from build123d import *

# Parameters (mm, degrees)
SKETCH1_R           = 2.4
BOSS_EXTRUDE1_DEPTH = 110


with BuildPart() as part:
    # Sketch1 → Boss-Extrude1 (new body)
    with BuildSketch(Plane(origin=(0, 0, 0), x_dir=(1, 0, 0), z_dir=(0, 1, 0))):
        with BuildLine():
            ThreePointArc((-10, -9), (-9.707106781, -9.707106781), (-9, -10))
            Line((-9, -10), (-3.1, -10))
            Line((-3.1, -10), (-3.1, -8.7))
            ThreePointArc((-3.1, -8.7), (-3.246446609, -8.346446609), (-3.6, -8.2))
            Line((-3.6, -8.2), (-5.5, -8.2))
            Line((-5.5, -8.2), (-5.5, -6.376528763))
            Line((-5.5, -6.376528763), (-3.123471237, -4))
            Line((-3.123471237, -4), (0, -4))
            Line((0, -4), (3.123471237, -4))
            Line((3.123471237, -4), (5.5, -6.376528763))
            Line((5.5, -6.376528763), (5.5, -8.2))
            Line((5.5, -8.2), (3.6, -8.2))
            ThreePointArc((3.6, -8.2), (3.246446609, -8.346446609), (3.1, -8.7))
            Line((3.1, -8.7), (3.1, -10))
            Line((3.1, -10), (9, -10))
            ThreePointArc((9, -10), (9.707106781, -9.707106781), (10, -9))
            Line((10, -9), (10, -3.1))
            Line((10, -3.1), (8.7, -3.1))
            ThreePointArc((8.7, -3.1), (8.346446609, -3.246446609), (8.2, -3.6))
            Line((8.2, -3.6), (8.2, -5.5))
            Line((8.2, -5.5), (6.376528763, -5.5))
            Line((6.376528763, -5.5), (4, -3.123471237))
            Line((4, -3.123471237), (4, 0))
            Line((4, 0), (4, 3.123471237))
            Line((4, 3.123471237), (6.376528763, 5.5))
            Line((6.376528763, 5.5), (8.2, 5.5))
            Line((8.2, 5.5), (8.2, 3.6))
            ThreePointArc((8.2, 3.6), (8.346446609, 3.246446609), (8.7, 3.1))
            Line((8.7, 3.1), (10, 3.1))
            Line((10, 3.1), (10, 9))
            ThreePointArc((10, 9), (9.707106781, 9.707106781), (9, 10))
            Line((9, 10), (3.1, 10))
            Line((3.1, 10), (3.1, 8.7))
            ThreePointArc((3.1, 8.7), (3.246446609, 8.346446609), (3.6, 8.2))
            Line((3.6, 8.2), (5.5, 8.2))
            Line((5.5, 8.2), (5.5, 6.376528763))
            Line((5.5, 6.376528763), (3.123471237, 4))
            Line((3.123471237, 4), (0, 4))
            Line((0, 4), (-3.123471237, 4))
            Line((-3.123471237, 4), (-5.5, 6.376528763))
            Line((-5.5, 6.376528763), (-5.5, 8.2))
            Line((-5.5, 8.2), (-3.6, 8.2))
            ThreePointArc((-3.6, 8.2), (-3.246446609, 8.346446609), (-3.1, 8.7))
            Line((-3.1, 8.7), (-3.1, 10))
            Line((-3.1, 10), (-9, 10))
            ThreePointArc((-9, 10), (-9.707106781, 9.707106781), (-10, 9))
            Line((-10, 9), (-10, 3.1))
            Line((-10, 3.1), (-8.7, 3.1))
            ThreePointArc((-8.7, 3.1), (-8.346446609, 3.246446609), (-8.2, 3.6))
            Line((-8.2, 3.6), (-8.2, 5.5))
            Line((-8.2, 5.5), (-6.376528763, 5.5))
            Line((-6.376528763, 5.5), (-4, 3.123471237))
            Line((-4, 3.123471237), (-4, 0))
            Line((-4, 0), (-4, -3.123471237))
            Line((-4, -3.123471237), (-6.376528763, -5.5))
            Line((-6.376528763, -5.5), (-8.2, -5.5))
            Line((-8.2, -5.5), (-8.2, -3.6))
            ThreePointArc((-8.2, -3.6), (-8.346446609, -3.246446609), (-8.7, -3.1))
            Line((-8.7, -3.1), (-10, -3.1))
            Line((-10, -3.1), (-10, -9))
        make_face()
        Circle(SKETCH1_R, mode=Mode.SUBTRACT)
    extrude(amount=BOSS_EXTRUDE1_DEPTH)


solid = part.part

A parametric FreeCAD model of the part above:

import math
import FreeCAD as App
import Part
import Sketcher
from FreeCAD import Vector

doc = App.newDocument("Part")
body = doc.addObject("PartDesign::Body", "Body")

sketch1 = body.newObject("Sketcher::SketchObject", "Sketch")
sketch1.AttachmentSupport = (doc.getObject("XZ_Plane"), [""])
sketch1.MapMode = "FlatFace"
sketch1.addGeometry([
    Part.ArcOfCircle(Part.Circle(Vector(-9, 9, 0), Vector(0, 0, 1), 1), math.radians(90), math.radians(180)),
    Part.LineSegment(Vector(-9, 10, 0), Vector(-3.1, 10, 0)),
    Part.LineSegment(Vector(-3.1, 10, 0), Vector(-3.1, 8.7, 0)),
    Part.ArcOfCircle(Part.Circle(Vector(-3.6, 8.7, 0), Vector(0, 0, 1), 0.5), math.radians(-90), math.radians(0)),
    Part.LineSegment(Vector(-3.6, 8.2, 0), Vector(-5.5, 8.2, 0)),
    Part.LineSegment(Vector(-5.5, 8.2, 0), Vector(-5.5, 6.38, 0)),
    Part.LineSegment(Vector(-5.5, 6.38, 0), Vector(-3.12, 4, 0)),
    Part.LineSegment(Vector(-3.12, 4, 0), Vector(3.12, 4, 0)),
    Part.LineSegment(Vector(3.12, 4, 0), Vector(5.5, 6.38, 0)),
    Part.LineSegment(Vector(5.5, 6.38, 0), Vector(5.5, 8.2, 0)),
    Part.LineSegment(Vector(5.5, 8.2, 0), Vector(3.6, 8.2, 0)),
    Part.ArcOfCircle(Part.Circle(Vector(3.6, 8.7, 0), Vector(0, 0, 1), 0.5), math.radians(180), math.radians(270)),
    Part.LineSegment(Vector(3.1, 8.7, 0), Vector(3.1, 10, 0)),
    Part.LineSegment(Vector(3.1, 10, 0), Vector(9, 10, 0)),
    Part.ArcOfCircle(Part.Circle(Vector(9, 9, 0), Vector(0, 0, 1), 1), math.radians(0), math.radians(90)),
    Part.LineSegment(Vector(10, 9, 0), Vector(10, 3.1, 0)),
    Part.LineSegment(Vector(10, 3.1, 0), Vector(8.7, 3.1, 0)),
    Part.ArcOfCircle(Part.Circle(Vector(8.7, 3.6, 0), Vector(0, 0, 1), 0.5), math.radians(180), math.radians(270)),
    Part.LineSegment(Vector(8.2, 3.6, 0), Vector(8.2, 5.5, 0)),
    Part.LineSegment(Vector(8.2, 5.5, 0), Vector(6.38, 5.5, 0)),
    Part.LineSegment(Vector(6.38, 5.5, 0), Vector(4, 3.12, 0)),
    Part.LineSegment(Vector(4, 3.12, 0), Vector(4, -3.12, 0)),
    Part.LineSegment(Vector(4, -3.12, 0), Vector(6.38, -5.5, 0)),
    Part.LineSegment(Vector(6.38, -5.5, 0), Vector(8.2, -5.5, 0)),
    Part.LineSegment(Vector(8.2, -5.5, 0), Vector(8.2, -3.6, 0)),
    Part.ArcOfCircle(Part.Circle(Vector(8.7, -3.6, 0), Vector(0, 0, 1), 0.5), math.radians(90), math.radians(180)),
    Part.LineSegment(Vector(8.7, -3.1, 0), Vector(10, -3.1, 0)),
    Part.LineSegment(Vector(10, -3.1, 0), Vector(10, -9, 0)),
    Part.ArcOfCircle(Part.Circle(Vector(9, -9, 0), Vector(0, 0, 1), 1), math.radians(-90), math.radians(0)),
    Part.LineSegment(Vector(9, -10, 0), Vector(3.1, -10, 0)),
    Part.LineSegment(Vector(3.1, -10, 0), Vector(3.1, -8.7, 0)),
    Part.ArcOfCircle(Part.Circle(Vector(3.6, -8.7, 0), Vector(0, 0, 1), 0.5), math.radians(90), math.radians(180)),
    Part.LineSegment(Vector(3.6, -8.2, 0), Vector(5.5, -8.2, 0)),
    Part.LineSegment(Vector(5.5, -8.2, 0), Vector(5.5, -6.38, 0)),
    Part.LineSegment(Vector(5.5, -6.38, 0), Vector(3.12, -4, 0)),
    Part.LineSegment(Vector(3.12, -4, 0), Vector(-3.12, -4, 0)),
    Part.LineSegment(Vector(-3.12, -4, 0), Vector(-5.5, -6.38, 0)),
    Part.LineSegment(Vector(-5.5, -6.38, 0), Vector(-5.5, -8.2, 0)),
    Part.LineSegment(Vector(-5.5, -8.2, 0), Vector(-3.6, -8.2, 0)),
    Part.ArcOfCircle(Part.Circle(Vector(-3.6, -8.7, 0), Vector(0, 0, 1), 0.5), math.radians(0), math.radians(90)),
    Part.LineSegment(Vector(-3.1, -8.7, 0), Vector(-3.1, -10, 0)),
    Part.LineSegment(Vector(-3.1, -10, 0), Vector(-9, -10, 0)),
    Part.ArcOfCircle(Part.Circle(Vector(-9, -9, 0), Vector(0, 0, 1), 1), math.radians(-180), math.radians(-90)),
    Part.LineSegment(Vector(-10, -9, 0), Vector(-10, -3.1, 0)),
    Part.LineSegment(Vector(-10, -3.1, 0), Vector(-8.7, -3.1, 0)),
    Part.ArcOfCircle(Part.Circle(Vector(-8.7, -3.6, 0), Vector(0, 0, 1), 0.5), math.radians(0), math.radians(90)),
    Part.LineSegment(Vector(-8.2, -3.6, 0), Vector(-8.2, -5.5, 0)),
    Part.LineSegment(Vector(-8.2, -5.5, 0), Vector(-6.38, -5.5, 0)),
    Part.LineSegment(Vector(-6.38, -5.5, 0), Vector(-4, -3.12, 0)),
    Part.LineSegment(Vector(-4, -3.12, 0), Vector(-4, 3.12, 0)),
    Part.LineSegment(Vector(-4, 3.12, 0), Vector(-6.38, 5.5, 0)),
    Part.LineSegment(Vector(-6.38, 5.5, 0), Vector(-8.2, 5.5, 0)),
    Part.LineSegment(Vector(-8.2, 5.5, 0), Vector(-8.2, 3.6, 0)),
    Part.ArcOfCircle(Part.Circle(Vector(-8.7, 3.6, 0), Vector(0, 0, 1), 0.5), math.radians(-90), math.radians(0)),
    Part.LineSegment(Vector(-8.7, 3.1, 0), Vector(-10, 3.1, 0)),
    Part.LineSegment(Vector(-10, 3.1, 0), Vector(-10, 9, 0)),
    Part.Circle(Vector(0, 0, 0), Vector(0, 0, 1), 2.4),
], False)
sketch1.addConstraint([
    Sketcher.Constraint("Tangent", 0, 1, 1, 1),
    Sketcher.Constraint("Coincident", 1, 2, 2, 1),
    Sketcher.Constraint("Tangent", 2, 2, 3, 2),
    Sketcher.Constraint("Tangent", 3, 1, 4, 1),
    Sketcher.Constraint("Coincident", 4, 2, 5, 1),
    Sketcher.Constraint("Coincident", 5, 2, 6, 1),
    Sketcher.Constraint("Coincident", 6, 2, 7, 1),
    Sketcher.Constraint("Coincident", 7, 2, 8, 1),
    Sketcher.Constraint("Coincident", 8, 2, 9, 1),
    Sketcher.Constraint("Coincident", 9, 2, 10, 1),
    Sketcher.Constraint("Tangent", 10, 2, 11, 2),
    Sketcher.Constraint("Tangent", 11, 1, 12, 1),
    Sketcher.Constraint("Coincident", 12, 2, 13, 1),
    Sketcher.Constraint("Tangent", 13, 2, 14, 2),
    Sketcher.Constraint("Tangent", 14, 1, 15, 1),
    Sketcher.Constraint("Coincident", 15, 2, 16, 1),
    Sketcher.Constraint("Tangent", 16, 2, 17, 2),
    Sketcher.Constraint("Tangent", 17, 1, 18, 1),
    Sketcher.Constraint("Coincident", 18, 2, 19, 1),
    Sketcher.Constraint("Coincident", 19, 2, 20, 1),
    Sketcher.Constraint("Coincident", 20, 2, 21, 1),
    Sketcher.Constraint("Coincident", 21, 2, 22, 1),
    Sketcher.Constraint("Coincident", 22, 2, 23, 1),
    Sketcher.Constraint("Coincident", 23, 2, 24, 1),
    Sketcher.Constraint("Tangent", 24, 2, 25, 2),
    Sketcher.Constraint("Tangent", 25, 1, 26, 1),
    Sketcher.Constraint("Coincident", 26, 2, 27, 1),
    Sketcher.Constraint("Tangent", 27, 2, 28, 2),
    Sketcher.Constraint("Tangent", 28, 1, 29, 1),
    Sketcher.Constraint("Coincident", 29, 2, 30, 1),
    Sketcher.Constraint("Tangent", 30, 2, 31, 2),
    Sketcher.Constraint("Tangent", 31, 1, 32, 1),
    Sketcher.Constraint("Coincident", 32, 2, 33, 1),
    Sketcher.Constraint("Coincident", 33, 2, 34, 1),
    Sketcher.Constraint("Coincident", 34, 2, 35, 1),
    Sketcher.Constraint("Coincident", 35, 2, 36, 1),
    Sketcher.Constraint("Coincident", 36, 2, 37, 1),
    Sketcher.Constraint("Coincident", 37, 2, 38, 1),
    Sketcher.Constraint("Tangent", 38, 2, 39, 2),
    Sketcher.Constraint("Tangent", 39, 1, 40, 1),
    Sketcher.Constraint("Coincident", 40, 2, 41, 1),
    Sketcher.Constraint("Tangent", 41, 2, 42, 2),
    Sketcher.Constraint("Tangent", 42, 1, 43, 1),
    Sketcher.Constraint("Coincident", 43, 2, 44, 1),
    Sketcher.Constraint("Tangent", 44, 2, 45, 2),
    Sketcher.Constraint("Tangent", 45, 1, 46, 1),
    Sketcher.Constraint("Coincident", 46, 2, 47, 1),
    Sketcher.Constraint("Coincident", 47, 2, 48, 1),
    Sketcher.Constraint("Coincident", 48, 2, 49, 1),
    Sketcher.Constraint("Coincident", 49, 2, 50, 1),
    Sketcher.Constraint("Coincident", 50, 2, 51, 1),
    Sketcher.Constraint("Coincident", 51, 2, 52, 1),
    Sketcher.Constraint("Tangent", 52, 2, 53, 2),
    Sketcher.Constraint("Tangent", 53, 1, 54, 1),
    Sketcher.Constraint("Coincident", 54, 2, 55, 1),
    Sketcher.Constraint("Tangent", 55, 2, 0, 2),
    Sketcher.Constraint("Horizontal", 1),
    Sketcher.Constraint("Vertical", 2),
    Sketcher.Constraint("Horizontal", 4),
    Sketcher.Constraint("Vertical", 5),
    Sketcher.Constraint("Horizontal", 7),
    Sketcher.Constraint("Vertical", 9),
    Sketcher.Constraint("Horizontal", 10),
    Sketcher.Constraint("Vertical", 12),
    Sketcher.Constraint("Horizontal", 13),
    Sketcher.Constraint("Vertical", 15),
    Sketcher.Constraint("Horizontal", 16),
    Sketcher.Constraint("Vertical", 18),
    Sketcher.Constraint("Horizontal", 19),
    Sketcher.Constraint("Vertical", 21),
    Sketcher.Constraint("Horizontal", 23),
    Sketcher.Constraint("Vertical", 24),
    Sketcher.Constraint("Horizontal", 26),
    Sketcher.Constraint("Vertical", 27),
    Sketcher.Constraint("Horizontal", 29),
    Sketcher.Constraint("Vertical", 30),
    Sketcher.Constraint("Horizontal", 32),
    Sketcher.Constraint("Vertical", 33),
    Sketcher.Constraint("Horizontal", 35),
    Sketcher.Constraint("Vertical", 37),
    Sketcher.Constraint("Horizontal", 38),
    Sketcher.Constraint("Vertical", 40),
    Sketcher.Constraint("Horizontal", 41),
    Sketcher.Constraint("Vertical", 43),
    Sketcher.Constraint("Horizontal", 44),
    Sketcher.Constraint("Vertical", 46),
    Sketcher.Constraint("Horizontal", 47),
    Sketcher.Constraint("Vertical", 49),
    Sketcher.Constraint("Horizontal", 51),
    Sketcher.Constraint("Vertical", 52),
    Sketcher.Constraint("Horizontal", 54),
    Sketcher.Constraint("Vertical", 55),
    Sketcher.Constraint("Coincident", 56, 3, -1, 1),
    Sketcher.Constraint("Equal", 3, 11),
    Sketcher.Constraint("Equal", 0, 14),
    Sketcher.Constraint("Equal", 11, 17),
    Sketcher.Constraint("Equal", 17, 25),
    Sketcher.Constraint("Equal", 14, 28),
    Sketcher.Constraint("Equal", 25, 31),
    Sketcher.Constraint("Equal", 31, 39),
    Sketcher.Constraint("Equal", 28, 42),
    Sketcher.Constraint("Equal", 39, 45),
    Sketcher.Constraint("Equal", 45, 53),
    Sketcher.Constraint("Symmetric", 0, 3, 28, 3, -1, 1),
    Sketcher.Constraint("Symmetric", 3, 3, 31, 3, -1, 1),
    Sketcher.Constraint("Symmetric", 11, 3, 39, 3, -1, 1),
    Sketcher.Constraint("Symmetric", 14, 3, 42, 3, -1, 1),
    Sketcher.Constraint("Symmetric", 17, 3, 45, 3, -1, 1),
    Sketcher.Constraint("Symmetric", 25, 3, 53, 3, -1, 1),
    Sketcher.Constraint("Symmetric", 5, 2, 33, 2, -1, 1),
    Sketcher.Constraint("Symmetric", 6, 2, 34, 2, -1, 1),
    Sketcher.Constraint("Symmetric", 8, 2, 36, 2, -1, 1),
    Sketcher.Constraint("Symmetric", 19, 2, 47, 2, -1, 1),
    Sketcher.Constraint("Symmetric", 20, 2, 48, 2, -1, 1),
    Sketcher.Constraint("Symmetric", 22, 2, 50, 2, -1, 1),
    Sketcher.Constraint("Symmetric", 3, 3, 11, 3, -2),
    Sketcher.Constraint("Symmetric", 0, 3, 14, 3, -2),
    Sketcher.Constraint("Symmetric", 25, 3, 45, 3, -2),
    Sketcher.Constraint("Symmetric", 5, 2, 8, 2, -2),
    Sketcher.Constraint("Symmetric", 22, 2, 47, 2, -2),
    Sketcher.Constraint("Perpendicular", 6, 8),
    Sketcher.Constraint("Parallel", 8, 20),
    Sketcher.Constraint("Perpendicular", 20, 22),
    Sketcher.Constraint("Perpendicular", 34, 36),
    Sketcher.Constraint("Perpendicular", 48, 50),
    Sketcher.Constraint("Horizontal", 21, 2, 48, 2),
    Sketcher.Constraint("Equal", 54, 2),
    Sketcher.Constraint("Equal", 51, 5),
    Sketcher.Constraint("Equal", 41, 15),
    Sketcher.Constraint("Equal", 38, 18),
    Sketcher.Constraint("Equal", 35, 21),
    Sketcher.Constraint("Equal", 8, 20),
    Sketcher.Constraint("Radius", 0, 1.0),
    Sketcher.Constraint("Diameter", 56, 4.8),
    Sketcher.Constraint("Radius", 3, 0.5),
    Sketcher.Constraint("DistanceX", 1, 1, 1, 2, 5.9),
    Sketcher.Constraint("DistanceX", 4, 2, 4, 1, 1.9),
    Sketcher.Constraint("DistanceX", 16, 2, 16, 1, 1.3),
    Sketcher.Constraint("DistanceX", 0, 3, -1, 1, 9.0),
    Sketcher.Constraint("DistanceY", -1, 1, 6, 2, 4.0),
    Sketcher.Constraint("DistanceX", 19, 2, 19, 1, 1.823471),
])
pad1 = body.newObject("PartDesign::Pad", "Pad")
pad1.Profile = sketch1
pad1.Length = 110
pad1.Reversed = True

doc.recompute()
